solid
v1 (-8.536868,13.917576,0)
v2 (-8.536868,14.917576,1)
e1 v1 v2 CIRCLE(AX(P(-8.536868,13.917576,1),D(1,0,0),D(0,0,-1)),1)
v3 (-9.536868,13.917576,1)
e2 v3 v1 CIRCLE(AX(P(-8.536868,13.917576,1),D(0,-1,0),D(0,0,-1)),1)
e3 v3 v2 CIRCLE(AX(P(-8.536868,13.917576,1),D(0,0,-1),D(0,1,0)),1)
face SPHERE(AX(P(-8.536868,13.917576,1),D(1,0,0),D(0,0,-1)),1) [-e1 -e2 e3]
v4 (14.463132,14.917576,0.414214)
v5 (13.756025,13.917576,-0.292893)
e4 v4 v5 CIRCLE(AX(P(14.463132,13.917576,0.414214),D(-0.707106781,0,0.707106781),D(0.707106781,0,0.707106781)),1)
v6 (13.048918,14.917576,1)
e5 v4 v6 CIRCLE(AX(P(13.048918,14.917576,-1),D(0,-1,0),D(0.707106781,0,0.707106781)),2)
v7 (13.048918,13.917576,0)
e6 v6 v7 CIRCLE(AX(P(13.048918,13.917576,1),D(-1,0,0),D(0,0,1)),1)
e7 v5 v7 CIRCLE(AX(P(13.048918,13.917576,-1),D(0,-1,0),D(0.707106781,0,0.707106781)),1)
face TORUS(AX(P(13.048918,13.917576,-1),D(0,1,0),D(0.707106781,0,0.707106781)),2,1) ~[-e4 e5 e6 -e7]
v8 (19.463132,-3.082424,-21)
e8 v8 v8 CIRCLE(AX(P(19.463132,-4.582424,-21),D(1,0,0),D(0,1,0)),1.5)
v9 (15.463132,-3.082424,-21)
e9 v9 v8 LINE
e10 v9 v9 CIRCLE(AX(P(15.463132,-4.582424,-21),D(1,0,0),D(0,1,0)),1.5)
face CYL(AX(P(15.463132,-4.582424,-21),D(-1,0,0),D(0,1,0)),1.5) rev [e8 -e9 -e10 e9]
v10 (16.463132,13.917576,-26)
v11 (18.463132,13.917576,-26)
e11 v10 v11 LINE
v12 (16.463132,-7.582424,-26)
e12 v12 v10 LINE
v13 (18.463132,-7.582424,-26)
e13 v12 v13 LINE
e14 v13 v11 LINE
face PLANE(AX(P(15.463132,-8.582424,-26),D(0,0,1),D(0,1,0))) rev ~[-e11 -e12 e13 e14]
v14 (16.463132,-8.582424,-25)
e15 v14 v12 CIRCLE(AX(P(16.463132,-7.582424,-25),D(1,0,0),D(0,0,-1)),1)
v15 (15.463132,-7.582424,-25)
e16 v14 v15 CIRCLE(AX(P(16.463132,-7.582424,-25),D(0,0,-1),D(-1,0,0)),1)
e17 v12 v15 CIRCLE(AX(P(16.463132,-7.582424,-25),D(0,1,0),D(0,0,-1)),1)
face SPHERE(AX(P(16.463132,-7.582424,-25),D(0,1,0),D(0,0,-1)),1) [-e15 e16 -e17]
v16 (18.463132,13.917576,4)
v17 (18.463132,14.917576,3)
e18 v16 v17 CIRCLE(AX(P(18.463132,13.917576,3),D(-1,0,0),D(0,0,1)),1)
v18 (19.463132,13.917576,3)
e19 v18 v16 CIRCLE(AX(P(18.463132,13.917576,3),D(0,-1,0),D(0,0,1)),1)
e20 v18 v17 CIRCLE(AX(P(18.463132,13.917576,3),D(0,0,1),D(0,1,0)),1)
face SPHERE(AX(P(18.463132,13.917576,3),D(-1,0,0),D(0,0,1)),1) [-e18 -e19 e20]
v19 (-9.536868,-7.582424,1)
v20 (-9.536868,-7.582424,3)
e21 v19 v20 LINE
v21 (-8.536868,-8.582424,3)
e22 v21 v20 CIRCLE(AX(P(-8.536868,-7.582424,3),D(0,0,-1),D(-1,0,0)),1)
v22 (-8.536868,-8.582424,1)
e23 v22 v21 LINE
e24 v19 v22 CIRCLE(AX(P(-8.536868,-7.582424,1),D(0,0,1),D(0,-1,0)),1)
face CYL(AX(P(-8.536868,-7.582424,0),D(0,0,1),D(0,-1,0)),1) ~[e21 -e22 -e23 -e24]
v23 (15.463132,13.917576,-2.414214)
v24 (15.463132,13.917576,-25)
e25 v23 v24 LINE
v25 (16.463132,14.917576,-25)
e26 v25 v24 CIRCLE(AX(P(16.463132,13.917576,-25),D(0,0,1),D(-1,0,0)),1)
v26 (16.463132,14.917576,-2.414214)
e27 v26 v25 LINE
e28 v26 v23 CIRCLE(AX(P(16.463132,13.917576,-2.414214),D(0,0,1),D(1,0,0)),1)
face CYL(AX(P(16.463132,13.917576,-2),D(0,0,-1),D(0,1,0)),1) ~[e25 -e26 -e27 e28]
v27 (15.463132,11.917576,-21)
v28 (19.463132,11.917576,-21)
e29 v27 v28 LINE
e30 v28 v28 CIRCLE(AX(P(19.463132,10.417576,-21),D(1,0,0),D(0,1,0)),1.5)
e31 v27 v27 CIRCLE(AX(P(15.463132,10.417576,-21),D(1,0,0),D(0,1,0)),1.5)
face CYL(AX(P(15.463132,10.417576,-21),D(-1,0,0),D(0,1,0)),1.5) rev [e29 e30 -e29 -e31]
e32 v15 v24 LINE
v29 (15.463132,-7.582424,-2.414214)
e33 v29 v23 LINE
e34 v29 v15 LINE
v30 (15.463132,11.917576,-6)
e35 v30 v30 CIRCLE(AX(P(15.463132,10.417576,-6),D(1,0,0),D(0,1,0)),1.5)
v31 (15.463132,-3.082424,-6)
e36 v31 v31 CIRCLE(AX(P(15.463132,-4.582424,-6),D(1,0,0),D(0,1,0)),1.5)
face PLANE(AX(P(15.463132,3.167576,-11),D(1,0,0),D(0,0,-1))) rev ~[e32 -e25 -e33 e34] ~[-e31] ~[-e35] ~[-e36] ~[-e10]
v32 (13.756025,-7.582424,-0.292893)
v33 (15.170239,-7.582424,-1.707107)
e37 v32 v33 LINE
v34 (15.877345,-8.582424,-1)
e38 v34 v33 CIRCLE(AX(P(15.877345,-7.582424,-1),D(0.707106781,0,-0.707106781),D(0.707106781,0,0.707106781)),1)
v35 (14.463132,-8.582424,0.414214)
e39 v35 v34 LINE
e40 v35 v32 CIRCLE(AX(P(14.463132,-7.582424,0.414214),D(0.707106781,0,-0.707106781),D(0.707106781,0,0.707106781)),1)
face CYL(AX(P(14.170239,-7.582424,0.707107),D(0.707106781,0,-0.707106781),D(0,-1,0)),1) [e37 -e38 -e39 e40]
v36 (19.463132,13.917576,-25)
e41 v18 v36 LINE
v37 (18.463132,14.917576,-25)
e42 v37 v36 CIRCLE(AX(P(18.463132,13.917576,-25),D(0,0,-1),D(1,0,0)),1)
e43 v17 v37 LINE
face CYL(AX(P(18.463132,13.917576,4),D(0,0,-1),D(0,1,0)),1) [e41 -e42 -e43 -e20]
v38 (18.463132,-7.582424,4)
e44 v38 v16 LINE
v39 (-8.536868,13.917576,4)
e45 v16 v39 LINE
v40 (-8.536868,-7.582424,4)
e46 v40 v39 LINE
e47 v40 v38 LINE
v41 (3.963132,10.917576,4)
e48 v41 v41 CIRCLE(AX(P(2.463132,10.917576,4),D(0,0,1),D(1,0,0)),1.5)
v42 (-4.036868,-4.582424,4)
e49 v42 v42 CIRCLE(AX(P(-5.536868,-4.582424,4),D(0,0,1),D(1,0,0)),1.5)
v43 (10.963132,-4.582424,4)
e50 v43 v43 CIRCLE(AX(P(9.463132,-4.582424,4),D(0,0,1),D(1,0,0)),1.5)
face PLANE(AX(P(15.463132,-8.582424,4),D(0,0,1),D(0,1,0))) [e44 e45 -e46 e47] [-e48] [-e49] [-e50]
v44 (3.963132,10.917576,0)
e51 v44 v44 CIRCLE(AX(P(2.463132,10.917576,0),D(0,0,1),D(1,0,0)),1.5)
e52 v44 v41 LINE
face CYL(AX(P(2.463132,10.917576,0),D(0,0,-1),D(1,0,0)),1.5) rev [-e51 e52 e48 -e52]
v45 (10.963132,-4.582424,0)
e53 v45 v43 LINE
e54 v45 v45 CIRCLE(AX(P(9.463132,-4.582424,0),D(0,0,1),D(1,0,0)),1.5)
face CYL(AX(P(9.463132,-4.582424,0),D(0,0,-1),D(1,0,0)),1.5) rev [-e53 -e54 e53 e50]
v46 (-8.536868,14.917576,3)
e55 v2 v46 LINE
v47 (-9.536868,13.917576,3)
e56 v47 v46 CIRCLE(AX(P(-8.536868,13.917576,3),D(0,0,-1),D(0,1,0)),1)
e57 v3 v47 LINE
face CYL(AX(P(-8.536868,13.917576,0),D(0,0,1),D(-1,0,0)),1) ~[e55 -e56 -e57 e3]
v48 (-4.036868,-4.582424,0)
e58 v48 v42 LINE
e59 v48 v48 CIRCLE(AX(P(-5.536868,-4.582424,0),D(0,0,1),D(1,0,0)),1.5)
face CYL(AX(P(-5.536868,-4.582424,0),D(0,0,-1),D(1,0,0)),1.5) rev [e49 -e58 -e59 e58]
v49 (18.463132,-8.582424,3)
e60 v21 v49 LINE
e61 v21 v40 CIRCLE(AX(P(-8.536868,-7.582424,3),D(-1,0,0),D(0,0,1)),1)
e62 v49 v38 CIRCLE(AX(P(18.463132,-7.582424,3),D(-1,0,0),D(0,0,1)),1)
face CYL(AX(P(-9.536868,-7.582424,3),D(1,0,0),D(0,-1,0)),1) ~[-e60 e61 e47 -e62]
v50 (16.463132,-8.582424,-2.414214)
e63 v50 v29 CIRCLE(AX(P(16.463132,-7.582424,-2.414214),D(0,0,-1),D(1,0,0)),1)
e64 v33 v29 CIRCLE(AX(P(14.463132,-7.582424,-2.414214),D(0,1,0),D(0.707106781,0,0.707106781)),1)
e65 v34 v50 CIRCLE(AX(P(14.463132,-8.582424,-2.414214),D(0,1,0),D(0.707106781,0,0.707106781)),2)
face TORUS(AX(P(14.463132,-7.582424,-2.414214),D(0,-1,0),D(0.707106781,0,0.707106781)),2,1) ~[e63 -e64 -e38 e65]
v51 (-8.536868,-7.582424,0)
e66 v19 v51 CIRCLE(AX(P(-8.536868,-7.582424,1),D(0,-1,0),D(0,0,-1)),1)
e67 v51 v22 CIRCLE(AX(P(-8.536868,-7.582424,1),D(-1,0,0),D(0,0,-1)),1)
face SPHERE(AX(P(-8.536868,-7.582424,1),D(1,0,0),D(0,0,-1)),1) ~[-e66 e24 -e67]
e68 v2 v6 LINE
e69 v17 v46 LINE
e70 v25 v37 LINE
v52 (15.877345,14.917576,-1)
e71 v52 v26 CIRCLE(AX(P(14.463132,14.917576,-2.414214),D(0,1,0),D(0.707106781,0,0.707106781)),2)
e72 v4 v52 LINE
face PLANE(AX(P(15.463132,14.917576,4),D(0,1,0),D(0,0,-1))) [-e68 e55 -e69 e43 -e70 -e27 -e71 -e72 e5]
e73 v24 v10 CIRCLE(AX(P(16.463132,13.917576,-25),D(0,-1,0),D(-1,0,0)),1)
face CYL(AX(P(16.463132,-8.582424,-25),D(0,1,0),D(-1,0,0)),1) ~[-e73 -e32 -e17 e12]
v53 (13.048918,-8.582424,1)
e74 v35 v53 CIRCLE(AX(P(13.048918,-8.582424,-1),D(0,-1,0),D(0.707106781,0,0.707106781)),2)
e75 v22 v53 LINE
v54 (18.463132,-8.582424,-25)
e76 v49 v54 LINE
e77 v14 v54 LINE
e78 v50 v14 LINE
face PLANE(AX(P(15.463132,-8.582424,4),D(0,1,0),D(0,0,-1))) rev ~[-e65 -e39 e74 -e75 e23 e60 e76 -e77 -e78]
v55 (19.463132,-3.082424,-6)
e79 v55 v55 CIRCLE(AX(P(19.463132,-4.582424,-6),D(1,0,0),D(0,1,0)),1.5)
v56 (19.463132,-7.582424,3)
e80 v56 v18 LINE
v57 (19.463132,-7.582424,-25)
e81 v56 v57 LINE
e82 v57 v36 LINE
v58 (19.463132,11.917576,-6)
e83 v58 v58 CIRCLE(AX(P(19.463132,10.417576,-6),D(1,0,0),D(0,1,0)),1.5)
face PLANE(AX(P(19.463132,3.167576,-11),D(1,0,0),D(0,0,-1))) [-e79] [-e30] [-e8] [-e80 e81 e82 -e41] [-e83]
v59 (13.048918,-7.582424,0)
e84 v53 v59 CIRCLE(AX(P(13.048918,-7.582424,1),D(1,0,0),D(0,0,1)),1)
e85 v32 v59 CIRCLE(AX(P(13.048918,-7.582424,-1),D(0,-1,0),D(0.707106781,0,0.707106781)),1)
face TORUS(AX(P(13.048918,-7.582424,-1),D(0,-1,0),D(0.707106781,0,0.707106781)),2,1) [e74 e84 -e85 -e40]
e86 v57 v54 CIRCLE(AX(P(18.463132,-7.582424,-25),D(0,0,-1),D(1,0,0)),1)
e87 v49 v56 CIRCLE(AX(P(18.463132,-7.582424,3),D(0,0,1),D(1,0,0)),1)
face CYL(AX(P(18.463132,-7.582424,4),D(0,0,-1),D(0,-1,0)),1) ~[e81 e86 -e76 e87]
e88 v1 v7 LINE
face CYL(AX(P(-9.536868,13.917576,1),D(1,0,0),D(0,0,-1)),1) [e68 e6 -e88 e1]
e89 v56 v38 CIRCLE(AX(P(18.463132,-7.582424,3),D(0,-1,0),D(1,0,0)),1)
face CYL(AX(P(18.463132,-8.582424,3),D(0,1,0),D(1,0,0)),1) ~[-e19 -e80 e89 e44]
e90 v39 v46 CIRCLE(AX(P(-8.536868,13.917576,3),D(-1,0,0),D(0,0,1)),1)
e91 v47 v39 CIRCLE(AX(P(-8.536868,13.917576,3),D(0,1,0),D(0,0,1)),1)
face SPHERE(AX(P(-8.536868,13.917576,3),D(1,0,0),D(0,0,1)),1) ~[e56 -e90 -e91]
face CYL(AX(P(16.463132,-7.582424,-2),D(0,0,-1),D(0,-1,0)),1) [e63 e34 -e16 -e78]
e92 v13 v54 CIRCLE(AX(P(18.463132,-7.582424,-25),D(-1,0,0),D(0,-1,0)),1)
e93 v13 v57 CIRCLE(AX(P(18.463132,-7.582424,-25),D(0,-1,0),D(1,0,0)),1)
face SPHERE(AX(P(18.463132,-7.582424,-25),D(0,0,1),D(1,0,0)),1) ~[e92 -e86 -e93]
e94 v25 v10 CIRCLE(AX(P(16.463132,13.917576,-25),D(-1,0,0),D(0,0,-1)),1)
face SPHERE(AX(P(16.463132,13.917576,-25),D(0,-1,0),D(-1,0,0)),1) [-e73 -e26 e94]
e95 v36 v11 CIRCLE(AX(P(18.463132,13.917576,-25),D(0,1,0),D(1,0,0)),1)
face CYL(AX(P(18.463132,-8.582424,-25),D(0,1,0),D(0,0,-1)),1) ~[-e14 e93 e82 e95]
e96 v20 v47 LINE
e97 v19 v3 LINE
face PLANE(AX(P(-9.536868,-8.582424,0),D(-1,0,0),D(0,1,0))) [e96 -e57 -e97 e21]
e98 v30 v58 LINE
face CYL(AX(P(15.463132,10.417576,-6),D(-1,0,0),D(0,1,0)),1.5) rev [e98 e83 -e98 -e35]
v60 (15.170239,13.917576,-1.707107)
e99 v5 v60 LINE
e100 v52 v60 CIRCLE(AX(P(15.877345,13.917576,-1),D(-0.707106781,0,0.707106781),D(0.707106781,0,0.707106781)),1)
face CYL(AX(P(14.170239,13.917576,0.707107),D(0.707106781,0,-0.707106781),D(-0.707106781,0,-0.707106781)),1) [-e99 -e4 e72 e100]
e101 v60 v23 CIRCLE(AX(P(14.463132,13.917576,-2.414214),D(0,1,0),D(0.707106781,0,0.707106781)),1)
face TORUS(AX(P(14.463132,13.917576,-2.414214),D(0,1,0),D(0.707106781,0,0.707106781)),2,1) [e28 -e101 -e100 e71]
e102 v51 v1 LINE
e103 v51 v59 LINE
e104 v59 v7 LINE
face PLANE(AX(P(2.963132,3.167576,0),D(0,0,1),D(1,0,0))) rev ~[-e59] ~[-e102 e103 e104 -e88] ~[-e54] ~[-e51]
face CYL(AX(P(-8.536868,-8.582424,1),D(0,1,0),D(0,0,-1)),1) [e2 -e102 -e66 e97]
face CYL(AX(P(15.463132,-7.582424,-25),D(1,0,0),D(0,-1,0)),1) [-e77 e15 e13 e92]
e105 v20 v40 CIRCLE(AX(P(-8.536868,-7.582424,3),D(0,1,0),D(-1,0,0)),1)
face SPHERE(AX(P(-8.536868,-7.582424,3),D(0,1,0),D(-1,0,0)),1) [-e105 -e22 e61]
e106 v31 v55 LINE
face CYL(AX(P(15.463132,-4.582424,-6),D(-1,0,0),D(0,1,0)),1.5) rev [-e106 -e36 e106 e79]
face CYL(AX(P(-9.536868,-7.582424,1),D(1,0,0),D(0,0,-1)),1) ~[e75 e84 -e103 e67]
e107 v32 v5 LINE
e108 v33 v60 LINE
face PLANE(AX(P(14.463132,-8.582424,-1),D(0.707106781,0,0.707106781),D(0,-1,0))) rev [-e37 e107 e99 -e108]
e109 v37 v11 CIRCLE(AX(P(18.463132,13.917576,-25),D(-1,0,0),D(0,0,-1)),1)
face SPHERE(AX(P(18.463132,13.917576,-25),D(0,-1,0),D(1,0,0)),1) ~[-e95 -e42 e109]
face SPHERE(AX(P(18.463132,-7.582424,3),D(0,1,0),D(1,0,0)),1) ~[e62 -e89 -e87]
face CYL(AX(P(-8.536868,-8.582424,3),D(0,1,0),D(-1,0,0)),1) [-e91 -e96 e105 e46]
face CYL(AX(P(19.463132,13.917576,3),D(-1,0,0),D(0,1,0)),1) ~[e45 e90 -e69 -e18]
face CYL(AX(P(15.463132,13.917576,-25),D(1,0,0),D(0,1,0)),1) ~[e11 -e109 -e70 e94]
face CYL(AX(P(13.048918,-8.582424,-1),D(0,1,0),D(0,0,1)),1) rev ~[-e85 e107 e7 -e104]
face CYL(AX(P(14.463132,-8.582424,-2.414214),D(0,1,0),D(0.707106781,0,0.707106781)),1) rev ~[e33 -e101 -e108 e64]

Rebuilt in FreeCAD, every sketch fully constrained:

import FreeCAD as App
import Part
import Sketcher
Q = App.Units.Quantity


def edges_at(feature, points):
    """Names of the edges that pass closest to the given points."""
    edges = feature.Shape.Edges
    near = lambda p: min(range(len(edges)), key=lambda i: edges[i].distToShape(Part.Vertex(*p))[0])
    return sorted({f"Edge{near(p) + 1}" for p in points})

doc = App.newDocument("Part")
body = doc.addObject("PartDesign::Body", "Body")

# Sketch on XY plane
sketch1 = doc.addObject("Sketcher::SketchObject", "Sketch")
body.addObject(sketch1)
sketch1.AttachmentSupport = (doc.XY_Plane, [""])
sketch1.MapMode = "FlatFace"
sketch1.addGeometry([
    Part.LineSegment(App.Vector(-9.536868, 14.917576, 0), App.Vector(-9.536868, -8.582424, 0)),  # 0
    Part.LineSegment(App.Vector(-9.536868, -8.582424, 0), App.Vector(15.463132, -8.582424, 0)),  # 1
    Part.LineSegment(App.Vector(15.463132, -8.582424, 0), App.Vector(15.463132, 14.917576, 0)),  # 2
    Part.LineSegment(App.Vector(15.463132, 14.917576, 0), App.Vector(-9.536868, 14.917576, 0)),  # 3
    Part.Circle(App.Vector(-5.536868, -4.582424, 0), App.Vector(0, 0, 1), 1.5),  # 4
    Part.Circle(App.Vector(9.463132, -4.582424, 0), App.Vector(0, 0, 1), 1.5),  # 5
    Part.Circle(App.Vector(2.463132, 10.917576, 0), App.Vector(0, 0, 1), 1.5),  # 6
], False)
sketch1.addConstraint([
    Sketcher.Constraint("Coincident", 0, 2, 1, 1),
    Sketcher.Constraint("Coincident", 1, 2, 2, 1),
    Sketcher.Constraint("Coincident", 2, 2, 3, 1),
    Sketcher.Constraint("Coincident", 3, 2, 0, 1),
    Sketcher.Constraint("Vertical", 0),
    Sketcher.Constraint("Horizontal", 1),
    Sketcher.Constraint("Vertical", 2),
    Sketcher.Constraint("Horizontal", 3),
    Sketcher.Constraint("Equal", 4, 5),
    Sketcher.Constraint("Equal", 5, 6),
    Sketcher.Constraint("Horizontal", 4, 3, 5, 3),
    Sketcher.Constraint("Diameter", 4, Q("3 mm")),
    Sketcher.Constraint("DistanceX", 1, 1, 1, 2, Q("25 mm")),
    Sketcher.Constraint("DistanceY", 0, 2, 0, 1, Q("23.5 mm")),
    Sketcher.Constraint("DistanceX", 4, 3, 5, 3, Q("15 mm")),
    Sketcher.Constraint("DistanceX", 6, 3, 5, 3, Q("7 mm")),
    Sketcher.Constraint("DistanceX", 0, 2, 4, 3, Q("4 mm")),
    Sketcher.Constraint("DistanceY", 0, 2, 4, 3, Q("4 mm")),
    Sketcher.Constraint("DistanceY", 6, 3, 2, 2, Q("4 mm")),
    Sketcher.Constraint("DistanceX", 4, 3, -1, 1, Q("5.536868 mm")),
    Sketcher.Constraint("DistanceY", 4, 3, -1, 1, Q("4.582424 mm")),
])
pad1 = doc.addObject("PartDesign::Pad", "Pad")
body.addObject(pad1)
pad1.Profile = sketch1
pad1.Length = 4

# Sketch on YZ plane
sketch2 = doc.addObject("Sketcher::SketchObject", "Sketch001")
body.addObject(sketch2)
sketch2.AttachmentSupport = (doc.YZ_Plane, [""])
sketch2.MapMode = "FlatFace"
sketch2.AttachmentOffset = App.Placement(App.Vector(0, 0, 15.463132), App.Rotation())
sketch2.addGeometry([
    Part.LineSegment(App.Vector(14.917576, 4, 0), App.Vector(-8.582424, 4, 0)),  # 0
    Part.LineSegment(App.Vector(-8.582424, 4, 0), App.Vector(-8.582424, -26, 0)),  # 1
    Part.LineSegment(App.Vector(-8.582424, -26, 0), App.Vector(14.917576, -26, 0)),  # 2
    Part.LineSegment(App.Vector(14.917576, -26, 0), App.Vector(14.917576, 4, 0)),  # 3
    Part.Circle(App.Vector(-4.582424, -6, 0), App.Vector(0, 0, 1), 1.5),  # 4
    Part.Circle(App.Vector(-4.582424, -21, 0), App.Vector(0, 0, 1), 1.5),  # 5
    Part.Circle(App.Vector(10.417576, -6, 0), App.Vector(0, 0, 1), 1.5),  # 6
    Part.Circle(App.Vector(10.417576, -21, 0), App.Vector(0, 0, 1), 1.5),  # 7
], False)
sketch2.addConstraint([
    Sketcher.Constraint("Coincident", 0, 2, 1, 1),
    Sketcher.Constraint("Coincident", 1, 2, 2, 1),
    Sketcher.Constraint("Coincident", 2, 2, 3, 1),
    Sketcher.Constraint("Coincident", 3, 2, 0, 1),
    Sketcher.Constraint("Horizontal", 0),
    Sketcher.Constraint("Vertical", 1),
    Sketcher.Constraint("Horizontal", 2),
    Sketcher.Constraint("Vertical", 3),
    Sketcher.Constraint("Equal", 4, 5),
    Sketcher.Constraint("Equal", 5, 6),
    Sketcher.Constraint("Equal", 6, 7),
    Sketcher.Constraint("Horizontal", 4, 3, 6, 3),
    Sketcher.Constraint("Horizontal", 5, 3, 7, 3),
    Sketcher.Constraint("Vertical", 4, 3, 5, 3),
    Sketcher.Constraint("Vertical", 6, 3, 7, 3),
    Sketcher.Constraint("Diameter", 4, Q("3 mm")),
    Sketcher.Constraint("DistanceY", 1, 2, 1, 1, Q("30 mm")),
    Sketcher.Constraint("DistanceX", 0, 2, 0, 1, Q("23.5 mm")),
    Sketcher.Constraint("DistanceY", 4, 3, -1, 1, Q("6 mm")),
    Sketcher.Constraint("DistanceY", 5, 3, -1, 1, Q("21 mm")),
    Sketcher.Constraint("DistanceY", -1, 1, 0, 2, Q("4 mm")),
    Sketcher.Constraint("DistanceX", 4, 3, 6, 3, Q("15 mm")),
    Sketcher.Constraint("DistanceX", 0, 2, 4, 3, Q("4 mm")),
    Sketcher.Constraint("DistanceX", 4, 3, -1, 1, Q("4.582424 mm")),
])
pad2 = doc.addObject("PartDesign::Pad", "Pad001")
body.addObject(pad2)
pad2.Profile = sketch2
pad2.Length = 4
doc.recompute()

chamfer = doc.addObject("PartDesign::Chamfer", "Chamfer")
body.addObject(chamfer)
chamfer.Base = (pad2, edges_at(pad2, [(15.463, 3.168, 0)]))
chamfer.Size = 2
doc.recompute()

fillet = doc.addObject("PartDesign::Fillet", "Fillet")
body.addObject(fillet)
fillet.Base = (chamfer, edges_at(chamfer, [
    (4.963, 14.918, 4),
    (19.463, 3.168, 4),
    (19.463, -8.582, -11),
    (19.463, 3.168, -26),
    (19.463, 14.918, -11),
    (15.463, 3.168, -26),
    (17.463, -8.582, -26),
    (15.463, 14.918, -14),
    (17.463, 14.918, -26),
    (15.463, -8.582, -14),
    (15.463, 3.168, -2),
    (1.963, 14.918, 0),
    (-9.537, 3.168, 4),
    (13.463, 3.168, 0),
    (14.463, 14.918, -1),
    (14.463, -8.582, -1),
    (1.963, -8.582, 0),
    (-9.537, 3.168, 0),
    (-9.537, 14.918, 2),
    (-9.537, -8.582, 2),
    (4.963, -8.582, 4),
]))
fillet.Radius = 1

doc.recompute()
